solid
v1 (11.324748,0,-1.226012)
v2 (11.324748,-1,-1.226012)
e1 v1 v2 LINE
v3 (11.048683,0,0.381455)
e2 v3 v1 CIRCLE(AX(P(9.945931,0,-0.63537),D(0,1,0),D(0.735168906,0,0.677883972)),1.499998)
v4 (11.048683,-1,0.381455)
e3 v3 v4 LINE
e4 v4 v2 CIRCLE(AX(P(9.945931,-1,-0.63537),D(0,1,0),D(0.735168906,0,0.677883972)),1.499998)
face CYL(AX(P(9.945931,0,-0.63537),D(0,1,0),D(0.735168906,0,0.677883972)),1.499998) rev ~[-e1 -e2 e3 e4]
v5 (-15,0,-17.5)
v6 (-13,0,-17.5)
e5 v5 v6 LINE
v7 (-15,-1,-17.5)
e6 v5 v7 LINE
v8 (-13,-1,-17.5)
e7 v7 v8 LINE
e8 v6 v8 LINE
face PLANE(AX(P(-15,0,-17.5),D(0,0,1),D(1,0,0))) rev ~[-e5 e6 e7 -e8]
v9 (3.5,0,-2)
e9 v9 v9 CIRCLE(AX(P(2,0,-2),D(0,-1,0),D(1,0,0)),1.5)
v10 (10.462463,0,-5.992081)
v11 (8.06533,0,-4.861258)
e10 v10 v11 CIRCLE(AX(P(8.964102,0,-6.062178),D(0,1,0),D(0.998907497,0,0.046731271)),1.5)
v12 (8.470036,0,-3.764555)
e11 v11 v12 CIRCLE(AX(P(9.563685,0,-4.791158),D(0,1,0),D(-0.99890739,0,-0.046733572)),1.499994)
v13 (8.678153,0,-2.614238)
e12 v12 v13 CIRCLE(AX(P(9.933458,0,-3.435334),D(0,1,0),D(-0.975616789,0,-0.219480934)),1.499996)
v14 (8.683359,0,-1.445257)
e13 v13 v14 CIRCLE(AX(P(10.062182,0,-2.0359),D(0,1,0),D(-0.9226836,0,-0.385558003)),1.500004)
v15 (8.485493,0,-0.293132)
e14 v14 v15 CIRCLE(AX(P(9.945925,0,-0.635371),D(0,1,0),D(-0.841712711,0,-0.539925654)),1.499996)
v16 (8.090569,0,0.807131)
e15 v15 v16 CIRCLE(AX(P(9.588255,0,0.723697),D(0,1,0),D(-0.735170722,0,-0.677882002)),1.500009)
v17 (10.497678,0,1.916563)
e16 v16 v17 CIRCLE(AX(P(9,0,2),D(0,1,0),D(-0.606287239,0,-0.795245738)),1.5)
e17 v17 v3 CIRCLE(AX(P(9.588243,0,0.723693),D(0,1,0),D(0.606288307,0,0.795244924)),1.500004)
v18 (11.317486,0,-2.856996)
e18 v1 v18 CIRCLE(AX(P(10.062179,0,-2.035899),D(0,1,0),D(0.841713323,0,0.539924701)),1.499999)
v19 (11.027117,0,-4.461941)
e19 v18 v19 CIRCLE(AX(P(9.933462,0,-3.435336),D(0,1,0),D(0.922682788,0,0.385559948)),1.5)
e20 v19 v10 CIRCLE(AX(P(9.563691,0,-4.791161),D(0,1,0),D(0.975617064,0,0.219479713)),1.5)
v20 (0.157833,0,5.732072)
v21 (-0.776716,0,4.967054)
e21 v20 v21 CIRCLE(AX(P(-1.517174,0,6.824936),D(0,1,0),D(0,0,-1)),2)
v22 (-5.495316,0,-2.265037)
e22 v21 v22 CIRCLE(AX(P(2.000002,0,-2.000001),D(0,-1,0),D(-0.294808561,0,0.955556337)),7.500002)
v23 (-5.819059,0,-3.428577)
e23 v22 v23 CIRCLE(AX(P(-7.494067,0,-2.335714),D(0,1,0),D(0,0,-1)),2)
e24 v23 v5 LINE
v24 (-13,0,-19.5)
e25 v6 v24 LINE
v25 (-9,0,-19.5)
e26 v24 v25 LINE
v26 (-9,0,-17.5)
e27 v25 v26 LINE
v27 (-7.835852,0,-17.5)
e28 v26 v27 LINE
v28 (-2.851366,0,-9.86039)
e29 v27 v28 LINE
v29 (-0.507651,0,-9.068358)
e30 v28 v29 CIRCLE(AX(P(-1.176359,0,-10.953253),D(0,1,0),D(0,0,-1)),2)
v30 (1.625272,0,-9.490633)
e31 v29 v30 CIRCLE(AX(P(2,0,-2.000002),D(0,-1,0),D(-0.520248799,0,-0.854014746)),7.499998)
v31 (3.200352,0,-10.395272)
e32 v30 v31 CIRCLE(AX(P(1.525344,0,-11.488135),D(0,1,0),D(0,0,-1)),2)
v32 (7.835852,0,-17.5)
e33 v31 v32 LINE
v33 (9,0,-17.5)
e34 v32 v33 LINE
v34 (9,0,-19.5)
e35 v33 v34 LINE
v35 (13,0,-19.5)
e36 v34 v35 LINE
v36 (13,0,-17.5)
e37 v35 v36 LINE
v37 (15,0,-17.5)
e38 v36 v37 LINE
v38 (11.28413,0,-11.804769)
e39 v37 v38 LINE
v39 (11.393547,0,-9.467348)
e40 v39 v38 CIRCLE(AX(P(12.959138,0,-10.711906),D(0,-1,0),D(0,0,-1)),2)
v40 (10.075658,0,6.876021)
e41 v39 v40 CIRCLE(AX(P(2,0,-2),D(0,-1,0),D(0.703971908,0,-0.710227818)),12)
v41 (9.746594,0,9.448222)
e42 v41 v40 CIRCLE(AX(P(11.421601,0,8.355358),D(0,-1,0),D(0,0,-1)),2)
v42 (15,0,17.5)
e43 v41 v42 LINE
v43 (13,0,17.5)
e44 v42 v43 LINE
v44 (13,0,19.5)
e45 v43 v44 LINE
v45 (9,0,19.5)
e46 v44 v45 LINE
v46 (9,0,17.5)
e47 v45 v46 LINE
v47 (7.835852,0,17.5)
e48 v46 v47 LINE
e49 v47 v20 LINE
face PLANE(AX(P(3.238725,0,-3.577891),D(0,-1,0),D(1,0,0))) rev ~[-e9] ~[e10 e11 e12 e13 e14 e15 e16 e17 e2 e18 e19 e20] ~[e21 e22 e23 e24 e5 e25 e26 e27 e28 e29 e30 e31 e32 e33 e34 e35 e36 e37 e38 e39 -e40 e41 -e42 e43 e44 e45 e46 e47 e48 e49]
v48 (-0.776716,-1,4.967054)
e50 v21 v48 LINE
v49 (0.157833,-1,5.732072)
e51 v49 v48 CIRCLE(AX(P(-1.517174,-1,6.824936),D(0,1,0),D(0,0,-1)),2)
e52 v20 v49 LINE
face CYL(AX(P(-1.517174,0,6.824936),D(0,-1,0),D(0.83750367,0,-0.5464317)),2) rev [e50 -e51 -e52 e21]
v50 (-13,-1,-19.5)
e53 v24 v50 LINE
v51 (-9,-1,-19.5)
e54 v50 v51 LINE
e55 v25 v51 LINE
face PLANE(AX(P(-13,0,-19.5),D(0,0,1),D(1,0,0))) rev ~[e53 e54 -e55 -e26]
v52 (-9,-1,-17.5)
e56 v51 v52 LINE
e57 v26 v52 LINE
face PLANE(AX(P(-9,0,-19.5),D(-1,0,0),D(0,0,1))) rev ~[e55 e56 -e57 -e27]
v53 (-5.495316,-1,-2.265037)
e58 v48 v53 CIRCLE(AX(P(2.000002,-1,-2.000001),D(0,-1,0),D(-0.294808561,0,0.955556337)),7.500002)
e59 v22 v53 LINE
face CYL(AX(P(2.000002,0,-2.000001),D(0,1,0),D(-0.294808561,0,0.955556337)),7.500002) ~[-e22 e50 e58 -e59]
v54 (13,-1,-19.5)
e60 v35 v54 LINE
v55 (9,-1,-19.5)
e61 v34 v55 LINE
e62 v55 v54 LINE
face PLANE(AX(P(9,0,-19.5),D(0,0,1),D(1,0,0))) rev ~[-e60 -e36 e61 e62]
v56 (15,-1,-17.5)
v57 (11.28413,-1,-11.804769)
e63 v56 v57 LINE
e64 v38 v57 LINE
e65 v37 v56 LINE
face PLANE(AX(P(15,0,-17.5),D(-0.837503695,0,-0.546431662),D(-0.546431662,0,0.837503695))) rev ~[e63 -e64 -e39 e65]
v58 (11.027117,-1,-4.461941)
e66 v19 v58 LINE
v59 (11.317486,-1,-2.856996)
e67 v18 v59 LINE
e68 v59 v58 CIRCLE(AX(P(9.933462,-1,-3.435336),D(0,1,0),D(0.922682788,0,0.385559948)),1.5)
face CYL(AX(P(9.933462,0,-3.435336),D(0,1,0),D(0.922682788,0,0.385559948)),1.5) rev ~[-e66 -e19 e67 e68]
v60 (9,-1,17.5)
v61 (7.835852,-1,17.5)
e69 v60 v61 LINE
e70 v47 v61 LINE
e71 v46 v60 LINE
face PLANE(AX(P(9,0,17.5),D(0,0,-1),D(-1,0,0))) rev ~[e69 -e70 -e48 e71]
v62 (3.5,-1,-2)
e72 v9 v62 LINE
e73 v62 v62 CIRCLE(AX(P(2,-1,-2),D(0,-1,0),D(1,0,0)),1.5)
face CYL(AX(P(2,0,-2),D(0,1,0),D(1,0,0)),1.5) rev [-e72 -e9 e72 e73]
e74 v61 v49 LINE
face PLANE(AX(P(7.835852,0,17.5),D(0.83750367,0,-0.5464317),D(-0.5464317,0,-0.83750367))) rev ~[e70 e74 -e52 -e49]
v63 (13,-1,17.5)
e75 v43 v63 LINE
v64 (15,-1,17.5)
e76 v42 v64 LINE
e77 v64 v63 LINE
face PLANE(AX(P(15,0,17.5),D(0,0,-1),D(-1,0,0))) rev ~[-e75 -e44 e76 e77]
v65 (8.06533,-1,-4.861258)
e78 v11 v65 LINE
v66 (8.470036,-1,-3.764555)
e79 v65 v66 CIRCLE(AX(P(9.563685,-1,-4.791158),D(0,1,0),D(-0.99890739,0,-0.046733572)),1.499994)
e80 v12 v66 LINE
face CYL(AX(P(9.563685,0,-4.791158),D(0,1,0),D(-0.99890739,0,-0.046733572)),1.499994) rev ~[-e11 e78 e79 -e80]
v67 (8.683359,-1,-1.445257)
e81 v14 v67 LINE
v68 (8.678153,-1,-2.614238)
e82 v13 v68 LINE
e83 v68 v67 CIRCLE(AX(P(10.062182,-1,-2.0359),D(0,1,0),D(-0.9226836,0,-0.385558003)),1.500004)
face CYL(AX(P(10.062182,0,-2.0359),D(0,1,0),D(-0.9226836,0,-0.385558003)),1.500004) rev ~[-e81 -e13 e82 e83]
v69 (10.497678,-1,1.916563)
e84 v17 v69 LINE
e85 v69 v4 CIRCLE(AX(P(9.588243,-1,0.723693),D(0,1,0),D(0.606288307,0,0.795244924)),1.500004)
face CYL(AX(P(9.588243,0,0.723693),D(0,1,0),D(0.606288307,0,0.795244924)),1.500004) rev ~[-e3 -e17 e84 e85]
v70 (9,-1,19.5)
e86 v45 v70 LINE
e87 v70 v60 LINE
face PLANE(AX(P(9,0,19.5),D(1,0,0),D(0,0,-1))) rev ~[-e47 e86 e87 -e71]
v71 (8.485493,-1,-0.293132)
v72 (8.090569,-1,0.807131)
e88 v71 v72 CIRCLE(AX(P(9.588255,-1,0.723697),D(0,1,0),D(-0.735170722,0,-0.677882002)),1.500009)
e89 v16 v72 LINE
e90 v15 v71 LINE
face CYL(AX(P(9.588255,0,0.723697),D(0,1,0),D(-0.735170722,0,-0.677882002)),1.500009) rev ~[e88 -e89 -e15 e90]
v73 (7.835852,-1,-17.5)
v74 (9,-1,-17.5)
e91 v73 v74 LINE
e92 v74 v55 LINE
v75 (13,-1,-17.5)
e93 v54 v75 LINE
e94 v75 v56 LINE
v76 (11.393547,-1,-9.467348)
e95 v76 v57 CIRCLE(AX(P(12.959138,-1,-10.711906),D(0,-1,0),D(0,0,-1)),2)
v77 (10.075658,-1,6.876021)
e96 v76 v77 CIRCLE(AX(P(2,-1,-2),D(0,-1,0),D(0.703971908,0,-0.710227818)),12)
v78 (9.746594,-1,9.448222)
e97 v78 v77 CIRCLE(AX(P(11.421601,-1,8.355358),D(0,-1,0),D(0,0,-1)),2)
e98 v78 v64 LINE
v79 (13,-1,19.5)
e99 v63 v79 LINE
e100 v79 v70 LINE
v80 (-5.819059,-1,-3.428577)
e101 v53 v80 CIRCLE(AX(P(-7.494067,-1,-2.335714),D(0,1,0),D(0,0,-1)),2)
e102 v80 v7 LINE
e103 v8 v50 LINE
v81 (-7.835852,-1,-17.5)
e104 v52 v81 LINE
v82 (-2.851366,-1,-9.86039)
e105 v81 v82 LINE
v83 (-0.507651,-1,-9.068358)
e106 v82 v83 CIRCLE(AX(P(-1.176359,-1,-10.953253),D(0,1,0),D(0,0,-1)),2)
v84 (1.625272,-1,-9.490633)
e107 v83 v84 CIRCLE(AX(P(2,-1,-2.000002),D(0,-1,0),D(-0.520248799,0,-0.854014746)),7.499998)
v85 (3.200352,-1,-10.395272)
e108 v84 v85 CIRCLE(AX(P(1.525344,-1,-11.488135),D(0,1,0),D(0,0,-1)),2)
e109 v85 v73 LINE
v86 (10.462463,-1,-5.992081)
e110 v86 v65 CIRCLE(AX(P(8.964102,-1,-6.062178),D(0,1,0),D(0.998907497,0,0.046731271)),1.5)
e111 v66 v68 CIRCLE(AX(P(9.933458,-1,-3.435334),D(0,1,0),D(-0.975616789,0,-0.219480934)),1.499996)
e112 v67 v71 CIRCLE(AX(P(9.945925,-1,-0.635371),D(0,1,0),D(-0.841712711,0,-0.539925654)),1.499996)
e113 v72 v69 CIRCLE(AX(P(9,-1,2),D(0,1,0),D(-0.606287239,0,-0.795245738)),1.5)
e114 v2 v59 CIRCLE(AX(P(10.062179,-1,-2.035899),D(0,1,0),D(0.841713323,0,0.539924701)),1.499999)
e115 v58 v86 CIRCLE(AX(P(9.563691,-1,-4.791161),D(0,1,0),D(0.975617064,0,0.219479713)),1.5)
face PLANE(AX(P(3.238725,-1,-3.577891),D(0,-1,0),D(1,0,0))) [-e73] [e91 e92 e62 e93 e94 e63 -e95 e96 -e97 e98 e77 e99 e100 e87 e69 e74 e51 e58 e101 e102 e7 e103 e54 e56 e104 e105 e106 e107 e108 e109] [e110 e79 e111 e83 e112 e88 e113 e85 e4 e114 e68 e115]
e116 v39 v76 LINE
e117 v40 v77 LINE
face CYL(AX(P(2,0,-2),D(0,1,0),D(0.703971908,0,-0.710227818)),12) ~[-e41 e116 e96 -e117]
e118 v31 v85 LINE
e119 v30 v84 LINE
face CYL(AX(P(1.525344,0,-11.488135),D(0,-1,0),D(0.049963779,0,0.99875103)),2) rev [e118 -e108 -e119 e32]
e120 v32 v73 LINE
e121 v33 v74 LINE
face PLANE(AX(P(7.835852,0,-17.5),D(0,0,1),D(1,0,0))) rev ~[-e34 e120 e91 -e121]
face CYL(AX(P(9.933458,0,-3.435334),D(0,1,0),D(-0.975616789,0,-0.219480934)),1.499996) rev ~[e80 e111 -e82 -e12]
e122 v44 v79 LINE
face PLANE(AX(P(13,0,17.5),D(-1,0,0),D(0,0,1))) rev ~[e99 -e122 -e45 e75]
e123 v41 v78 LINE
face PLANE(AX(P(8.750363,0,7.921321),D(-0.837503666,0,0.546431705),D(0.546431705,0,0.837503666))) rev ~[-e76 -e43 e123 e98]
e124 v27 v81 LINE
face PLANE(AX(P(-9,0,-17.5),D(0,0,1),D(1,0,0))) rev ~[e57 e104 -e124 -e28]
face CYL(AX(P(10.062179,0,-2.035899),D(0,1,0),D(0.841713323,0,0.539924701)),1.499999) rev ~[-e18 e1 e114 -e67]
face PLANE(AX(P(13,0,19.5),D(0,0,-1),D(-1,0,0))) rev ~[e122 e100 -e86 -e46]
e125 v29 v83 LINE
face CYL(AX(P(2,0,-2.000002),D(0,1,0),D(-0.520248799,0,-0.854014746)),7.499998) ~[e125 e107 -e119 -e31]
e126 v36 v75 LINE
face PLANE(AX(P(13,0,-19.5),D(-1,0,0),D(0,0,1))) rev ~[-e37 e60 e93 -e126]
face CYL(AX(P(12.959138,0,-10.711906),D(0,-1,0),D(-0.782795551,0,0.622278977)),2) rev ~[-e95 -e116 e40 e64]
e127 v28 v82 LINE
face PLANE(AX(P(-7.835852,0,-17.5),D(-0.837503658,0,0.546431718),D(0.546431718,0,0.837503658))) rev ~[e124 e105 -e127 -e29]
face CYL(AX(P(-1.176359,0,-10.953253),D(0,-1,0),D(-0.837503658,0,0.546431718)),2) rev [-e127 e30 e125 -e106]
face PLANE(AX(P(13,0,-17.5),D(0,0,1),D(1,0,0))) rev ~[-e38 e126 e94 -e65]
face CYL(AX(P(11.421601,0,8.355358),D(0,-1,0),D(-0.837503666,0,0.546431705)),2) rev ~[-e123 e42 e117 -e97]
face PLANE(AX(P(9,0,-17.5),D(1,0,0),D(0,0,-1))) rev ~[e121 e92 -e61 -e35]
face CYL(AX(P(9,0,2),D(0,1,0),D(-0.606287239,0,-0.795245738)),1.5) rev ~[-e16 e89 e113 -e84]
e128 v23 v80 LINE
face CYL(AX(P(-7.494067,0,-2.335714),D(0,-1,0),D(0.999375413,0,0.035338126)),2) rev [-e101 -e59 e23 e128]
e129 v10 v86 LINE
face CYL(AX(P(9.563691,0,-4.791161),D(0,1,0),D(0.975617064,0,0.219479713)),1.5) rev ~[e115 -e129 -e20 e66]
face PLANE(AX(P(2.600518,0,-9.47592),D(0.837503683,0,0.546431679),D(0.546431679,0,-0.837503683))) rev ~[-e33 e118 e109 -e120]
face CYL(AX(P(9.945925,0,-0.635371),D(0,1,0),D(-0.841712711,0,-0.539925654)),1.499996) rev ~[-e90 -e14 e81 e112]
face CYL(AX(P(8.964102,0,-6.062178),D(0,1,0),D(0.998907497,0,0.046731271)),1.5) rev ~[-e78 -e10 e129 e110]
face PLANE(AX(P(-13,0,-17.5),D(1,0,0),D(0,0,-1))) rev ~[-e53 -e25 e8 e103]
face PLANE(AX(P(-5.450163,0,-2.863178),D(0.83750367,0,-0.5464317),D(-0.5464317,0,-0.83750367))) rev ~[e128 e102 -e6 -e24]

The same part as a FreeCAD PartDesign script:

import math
import FreeCAD as App
import Part
import Sketcher

V = App.Vector
Q = App.Units.Quantity


def edges_at(feature, points):
    """Names of the edges that pass closest to the given points."""
    edges = feature.Shape.Edges
    near = lambda p: min(range(len(edges)), key=lambda i: edges[i].distToShape(Part.Vertex(*p))[0])
    return sorted({f"Edge{near(p) + 1}" for p in points})

doc = App.newDocument("Part")
body = doc.addObject("PartDesign::Body", "Body")

# Sketch on XZ plane
sketch1 = body.newObject("Sketcher::SketchObject", "Sketch")
sketch1.AttachmentSupport = (doc.getObject("XZ_Plane"), [""])
sketch1.MapMode = "FlatFace"
sketch1.addGeometry([
    Part.LineSegment(V(9, 17.5, 0), V(7.835852, 17.5, 0)),  # 0
    Part.LineSegment(V(7.835852, 17.5, 0), V(-0.211063, 5.166673, 0)),  # 1
    Part.ArcOfCircle(Part.Circle(V(2.000002, -2.000001, 0), V(0, 0, 1), 7.500002), math.radians(107.146058), math.radians(186.608827)),  # 2
    Part.LineSegment(V(-5.450163, -2.863178, 0), V(-15, -17.5, 0)),  # 3
    Part.LineSegment(V(-15, -17.5, 0), V(-13, -17.5, 0)),  # 4
    Part.LineSegment(V(-13, -17.5, 0), V(-13, -19.5, 0)),  # 5
    Part.LineSegment(V(-13, -19.5, 0), V(-9, -19.5, 0)),  # 6
    Part.LineSegment(V(-9, -19.5, 0), V(-9, -17.5, 0)),  # 7
    Part.LineSegment(V(-9, -17.5, 0), V(-7.835852, -17.5, 0)),  # 8
    Part.LineSegment(V(-7.835852, -17.5, 0), V(-1.901865, -8.405111, 0)),  # 9
    Part.ArcOfCircle(Part.Circle(V(2, -2.000002, 0), V(0, 0, 1), 7.499998), math.radians(-121.348942), math.radians(-85.407463)),  # 10
    Part.LineSegment(V(2.600518, -9.47592, 0), V(7.835852, -17.5, 0)),  # 11
    Part.LineSegment(V(7.835852, -17.5, 0), V(9, -17.5, 0)),  # 12
    Part.LineSegment(V(9, -17.5, 0), V(9, -19.5, 0)),  # 13
    Part.LineSegment(V(9, -19.5, 0), V(13, -19.5, 0)),  # 14
    Part.LineSegment(V(13, -19.5, 0), V(13, -17.5, 0)),  # 15
    Part.LineSegment(V(13, -17.5, 0), V(15, -17.5, 0)),  # 16
    Part.LineSegment(V(15, -17.5, 0), V(10.447663, -10.522734, 0)),  # 17
    Part.ArcOfCircle(Part.Circle(V(2, -2, 0), V(0, 0, 1), 12), math.radians(-45.253454), math.radians(55.769038)),  # 18
    Part.LineSegment(V(8.750363, 7.921321, 0), V(15, 17.5, 0)),  # 19
    Part.LineSegment(V(15, 17.5, 0), V(13, 17.5, 0)),  # 20
    Part.LineSegment(V(13, 17.5, 0), V(13, 19.5, 0)),  # 21
    Part.LineSegment(V(13, 19.5, 0), V(9, 19.5, 0)),  # 22
    Part.LineSegment(V(9, 19.5, 0), V(9, 17.5, 0)),  # 23
    Part.Circle(V(2, -2, 0), V(0, 0, 1), 1.5),  # 24
    Part.ArcOfCircle(Part.Circle(V(9.588255, 0.723697, 0), V(0, 0, 1), 1.500009), math.radians(176.811423), math.radians(222.678356)),  # 25
    Part.ArcOfCircle(Part.Circle(V(9, 2, 0), V(0, 0, 1), 1.5), math.radians(-3.188698), math.radians(232.678472)),  # 26
    Part.ArcOfCircle(Part.Circle(V(9.588243, 0.723693, 0), V(0, 0, 1), 1.500004), math.radians(-13.188651), math.radians(52.678395)),  # 27
    Part.ArcOfCircle(Part.Circle(V(9.945931, -0.63537, 0), V(0, 0, 1), 1.499998), math.radians(-23.188782), math.radians(42.67851)),  # 28
    Part.ArcOfCircle(Part.Circle(V(10.062179, -2.035899, 0), V(0, 0, 1), 1.499999), math.radians(-33.188732), math.radians(32.678513)),  # 29
    Part.ArcOfCircle(Part.Circle(V(9.933462, -3.435336, 0), V(0, 0, 1), 1.5), math.radians(-43.188716), math.radians(22.678507)),  # 30
    Part.ArcOfCircle(Part.Circle(V(9.563691, -4.791161, 0), V(0, 0, 1), 1.5), math.radians(-53.188729), math.radians(12.678476)),  # 31
    Part.ArcOfCircle(Part.Circle(V(8.964102, -6.062178, 0), V(0, 0, 1), 1.5), math.radians(126.811287), math.radians(362.67848)),  # 32
    Part.ArcOfCircle(Part.Circle(V(9.563685, -4.791158, 0), V(0, 0, 1), 1.499994), math.radians(136.811189), math.radians(182.678612)),  # 33
    Part.ArcOfCircle(Part.Circle(V(9.933458, -3.435334, 0), V(0, 0, 1), 1.499996), math.radians(146.811247), math.radians(192.678548)),  # 34
    Part.ArcOfCircle(Part.Circle(V(10.062182, -2.0359, 0), V(0, 0, 1), 1.500004), math.radians(156.811289), math.radians(202.678386)),  # 35
    Part.ArcOfCircle(Part.Circle(V(9.945925, -0.635371, 0), V(0, 0, 1), 1.499996), math.radians(166.811251), math.radians(212.678578)),  # 36
], False)
sketch1.addConstraint([
    Sketcher.Constraint("Coincident", 0, 2, 1, 1),
    Sketcher.Constraint("Coincident", 1, 2, 2, 1),
    Sketcher.Constraint("Coincident", 2, 2, 3, 1),
    Sketcher.Constraint("Coincident", 3, 2, 4, 1),
    Sketcher.Constraint("Coincident", 4, 2, 5, 1),
    Sketcher.Constraint("Coincident", 5, 2, 6, 1),
    Sketcher.Constraint("Coincident", 6, 2, 7, 1),
    Sketcher.Constraint("Coincident", 7, 2, 8, 1),
    Sketcher.Constraint("Coincident", 8, 2, 9, 1),
    Sketcher.Constraint("Coincident", 9, 2, 10, 1),
    Sketcher.Constraint("Coincident", 10, 2, 11, 1),
    Sketcher.Constraint("Coincident", 11, 2, 12, 1),
    Sketcher.Constraint("Coincident", 12, 2, 13, 1),
    Sketcher.Constraint("Coincident", 13, 2, 14, 1),
    Sketcher.Constraint("Coincident", 14, 2, 15, 1),
    Sketcher.Constraint("Coincident", 15, 2, 16, 1),
    Sketcher.Constraint("Coincident", 16, 2, 17, 1),
    Sketcher.Constraint("Coincident", 17, 2, 18, 1),
    Sketcher.Constraint("Coincident", 18, 2, 19, 1),
    Sketcher.Constraint("Coincident", 19, 2, 20, 1),
    Sketcher.Constraint("Coincident", 20, 2, 21, 1),
    Sketcher.Constraint("Coincident", 21, 2, 22, 1),
    Sketcher.Constraint("Coincident", 22, 2, 23, 1),
    Sketcher.Constraint("Coincident", 23, 2, 0, 1),
    Sketcher.Constraint("Coincident", 25, 1, 26, 2),
    Sketcher.Constraint("Coincident", 26, 1, 27, 2),
    Sketcher.Constraint("Coincident", 27, 1, 28, 2),
    Sketcher.Constraint("Coincident", 28, 1, 29, 2),
    Sketcher.Constraint("Coincident", 29, 1, 30, 2),
    Sketcher.Constraint("Coincident", 30, 1, 31, 2),
    Sketcher.Constraint("Coincident", 31, 1, 32, 2),
    Sketcher.Constraint("Coincident", 32, 1, 33, 2),
    Sketcher.Constraint("Coincident", 33, 1, 34, 2),
    Sketcher.Constraint("Coincident", 34, 1, 35, 2),
    Sketcher.Constraint("Coincident", 35, 1, 36, 2),
    Sketcher.Constraint("Coincident", 36, 1, 25, 2),
    Sketcher.Constraint("Horizontal", 0),
    Sketcher.Constraint("Horizontal", 4),
    Sketcher.Constraint("Vertical", 5),
    Sketcher.Constraint("Horizontal", 6),
    Sketcher.Constraint("Vertical", 7),
    Sketcher.Constraint("Horizontal", 8),
    Sketcher.Constraint("Horizontal", 12),
    Sketcher.Constraint("Vertical", 13),
    Sketcher.Constraint("Horizontal", 14),
    Sketcher.Constraint("Vertical", 15),
    Sketcher.Constraint("Horizontal", 16),
    Sketcher.Constraint("Horizontal", 20),
    Sketcher.Constraint("Vertical", 21),
    Sketcher.Constraint("Horizontal", 22),
    Sketcher.Constraint("Vertical", 23),
    Sketcher.Constraint("Coincident", 10, 3, 2, 3),
    Sketcher.Constraint("Coincident", 18, 3, 2, 3),
    Sketcher.Constraint("Coincident", 24, 3, 2, 3),
    Sketcher.Constraint("Coincident", 33, 3, 31, 3),
    Sketcher.Constraint("Coincident", 34, 3, 30, 3),
    Sketcher.Constraint("Coincident", 35, 3, 29, 3),
    Sketcher.Constraint("Coincident", 36, 3, 28, 3),
    Sketcher.Constraint("Equal", 24, 26),
    Sketcher.Constraint("Equal", 24, 28),
    Sketcher.Constraint("Equal", 28, 29),
    Sketcher.Constraint("Equal", 29, 30),
    Sketcher.Constraint("Equal", 30, 31),
    Sketcher.Constraint("Equal", 31, 32),
    Sketcher.Constraint("Equal", 28, 34),
    Sketcher.Constraint("Equal", 27, 35),
    Sketcher.Constraint("Equal", 34, 36),
    Sketcher.Constraint("Symmetric", 0, 2, 8, 2, -1, 1),
    Sketcher.Constraint("Symmetric", 3, 2, 19, 2, -1, 1),
    Sketcher.Constraint("Symmetric", 5, 2, 21, 2, -1, 1),
    Sketcher.Constraint("Symmetric", 8, 2, 11, 2, -2),
    Sketcher.Constraint("Symmetric", 6, 2, 13, 2, -2),
    Sketcher.Constraint("Symmetric", 4, 2, 15, 2, -2),
    Sketcher.Constraint("Parallel", 1, 3),
    Sketcher.Constraint("Parallel", 3, 9),
    Sketcher.Constraint("Parallel", 11, 17),
    Sketcher.Constraint("Parallel", 9, 19),
    Sketcher.Constraint("Horizontal", 4, 2, 7, 2),
    Sketcher.Constraint("Vertical", 26, 3, 12, 2),
    Sketcher.Constraint("Vertical", 16, 2, 19, 2),
    Sketcher.Constraint("Vertical", 13, 2, 22, 2),
    Sketcher.Constraint("Equal", 20, 5),
    Sketcher.Constraint("Diameter", 24, Q("3 mm")),
    Sketcher.Constraint("Radius", 18, Q("12 mm")),
    Sketcher.Constraint("Radius", 2, Q("7.500002 mm")),
    Sketcher.Constraint("Radius", 10, Q("7.499998 mm")),
    Sketcher.Constraint("DistanceX", 4, 1, 4, 2, Q("2 mm")),
    Sketcher.Constraint("DistanceX", 6, 1, 6, 2, Q("4 mm")),
    Sketcher.Constraint("DistanceX", -1, 1, 2, 3, Q("2.000002 mm")),
    Sketcher.Constraint("DistanceY", 2, 3, -1, 1, Q("2.000001 mm")),
    Sketcher.Constraint("DistanceX", -1, 1, 26, 3, Q("9 mm")),
    Sketcher.Constraint("DistanceY", -1, 1, 26, 3, Q("2 mm")),
    Sketcher.Constraint("DistanceY", -1, 1, 0, 2, Q("17.5 mm")),
    Sketcher.Constraint("Radius", 25, Q("1.500009 mm")),
    Sketcher.Constraint("Radius", 27, Q("1.500004 mm")),
    Sketcher.Constraint("Radius", 33, Q("1.499994 mm")),
    Sketcher.Constraint("DistanceX", 30, 3, 31, 1, Q("0.529001 mm")),
    Sketcher.Constraint("DistanceY", 29, 3, -1, 1, Q("2.035899 mm")),
    Sketcher.Constraint("DistanceX", -1, 1, 32, 3, Q("8.964102 mm")),
    Sketcher.Constraint("DistanceY", 2, 3, 25, 3, Q("2.723698 mm")),
    Sketcher.Constraint("DistanceX", 2, 2, 1, 2, Q("5.2391 mm")),
    Sketcher.Constraint("DistanceX", 2, 2, 9, 2, Q("3.548298 mm")),
    Sketcher.Constraint("DistanceX", 30, 3, 17, 2, Q("0.514201 mm")),
    Sketcher.Constraint("DistanceY", 17, 2, 30, 3, Q("7.087398 mm")),
    Sketcher.Constraint("DistanceY", 36, 3, 25, 1, Q("1.442502 mm")),
    Sketcher.Constraint("DistanceY", 32, 1, 33, 3, Q("0.0701 mm")),
    Sketcher.Constraint("DistanceX", -1, 1, 28, 3, Q("9.945931 mm")),
    Sketcher.Constraint("DistanceY", 28, 3, -1, 1, Q("0.63537 mm")),
    Sketcher.Constraint("DistanceX", -1, 1, 29, 3, Q("10.062179 mm")),
    Sketcher.Constraint("DistanceX", -1, 1, 31, 3, Q("9.563691 mm")),
    Sketcher.Constraint("DistanceY", 31, 3, -1, 1, Q("4.791161 mm")),
    Sketcher.Constraint("DistanceX", 2, 3, 27, 3, Q("7.588242 mm")),
    Sketcher.Constraint("DistanceY", 29, 3, 27, 3, Q("2.759591 mm")),
])
pad1 = body.newObject("PartDesign::Pad", "Pad")
pad1.Profile = sketch1
pad1.Length = 1
doc.recompute()

fillet = body.newObject("PartDesign::Fillet", "Fillet")
fillet.Base = (pad1, edges_at(pad1, [
    (-1.902, -0.5, -8.405),
    (2.601, -0.5, -9.476),
    (10.448, -0.5, -10.523),
    (8.75, -0.5, 7.921),
    (-0.211, -0.5, 5.167),
    (-5.45, -0.5, -2.863),
]))
fillet.Radius = 2

doc.recompute()
